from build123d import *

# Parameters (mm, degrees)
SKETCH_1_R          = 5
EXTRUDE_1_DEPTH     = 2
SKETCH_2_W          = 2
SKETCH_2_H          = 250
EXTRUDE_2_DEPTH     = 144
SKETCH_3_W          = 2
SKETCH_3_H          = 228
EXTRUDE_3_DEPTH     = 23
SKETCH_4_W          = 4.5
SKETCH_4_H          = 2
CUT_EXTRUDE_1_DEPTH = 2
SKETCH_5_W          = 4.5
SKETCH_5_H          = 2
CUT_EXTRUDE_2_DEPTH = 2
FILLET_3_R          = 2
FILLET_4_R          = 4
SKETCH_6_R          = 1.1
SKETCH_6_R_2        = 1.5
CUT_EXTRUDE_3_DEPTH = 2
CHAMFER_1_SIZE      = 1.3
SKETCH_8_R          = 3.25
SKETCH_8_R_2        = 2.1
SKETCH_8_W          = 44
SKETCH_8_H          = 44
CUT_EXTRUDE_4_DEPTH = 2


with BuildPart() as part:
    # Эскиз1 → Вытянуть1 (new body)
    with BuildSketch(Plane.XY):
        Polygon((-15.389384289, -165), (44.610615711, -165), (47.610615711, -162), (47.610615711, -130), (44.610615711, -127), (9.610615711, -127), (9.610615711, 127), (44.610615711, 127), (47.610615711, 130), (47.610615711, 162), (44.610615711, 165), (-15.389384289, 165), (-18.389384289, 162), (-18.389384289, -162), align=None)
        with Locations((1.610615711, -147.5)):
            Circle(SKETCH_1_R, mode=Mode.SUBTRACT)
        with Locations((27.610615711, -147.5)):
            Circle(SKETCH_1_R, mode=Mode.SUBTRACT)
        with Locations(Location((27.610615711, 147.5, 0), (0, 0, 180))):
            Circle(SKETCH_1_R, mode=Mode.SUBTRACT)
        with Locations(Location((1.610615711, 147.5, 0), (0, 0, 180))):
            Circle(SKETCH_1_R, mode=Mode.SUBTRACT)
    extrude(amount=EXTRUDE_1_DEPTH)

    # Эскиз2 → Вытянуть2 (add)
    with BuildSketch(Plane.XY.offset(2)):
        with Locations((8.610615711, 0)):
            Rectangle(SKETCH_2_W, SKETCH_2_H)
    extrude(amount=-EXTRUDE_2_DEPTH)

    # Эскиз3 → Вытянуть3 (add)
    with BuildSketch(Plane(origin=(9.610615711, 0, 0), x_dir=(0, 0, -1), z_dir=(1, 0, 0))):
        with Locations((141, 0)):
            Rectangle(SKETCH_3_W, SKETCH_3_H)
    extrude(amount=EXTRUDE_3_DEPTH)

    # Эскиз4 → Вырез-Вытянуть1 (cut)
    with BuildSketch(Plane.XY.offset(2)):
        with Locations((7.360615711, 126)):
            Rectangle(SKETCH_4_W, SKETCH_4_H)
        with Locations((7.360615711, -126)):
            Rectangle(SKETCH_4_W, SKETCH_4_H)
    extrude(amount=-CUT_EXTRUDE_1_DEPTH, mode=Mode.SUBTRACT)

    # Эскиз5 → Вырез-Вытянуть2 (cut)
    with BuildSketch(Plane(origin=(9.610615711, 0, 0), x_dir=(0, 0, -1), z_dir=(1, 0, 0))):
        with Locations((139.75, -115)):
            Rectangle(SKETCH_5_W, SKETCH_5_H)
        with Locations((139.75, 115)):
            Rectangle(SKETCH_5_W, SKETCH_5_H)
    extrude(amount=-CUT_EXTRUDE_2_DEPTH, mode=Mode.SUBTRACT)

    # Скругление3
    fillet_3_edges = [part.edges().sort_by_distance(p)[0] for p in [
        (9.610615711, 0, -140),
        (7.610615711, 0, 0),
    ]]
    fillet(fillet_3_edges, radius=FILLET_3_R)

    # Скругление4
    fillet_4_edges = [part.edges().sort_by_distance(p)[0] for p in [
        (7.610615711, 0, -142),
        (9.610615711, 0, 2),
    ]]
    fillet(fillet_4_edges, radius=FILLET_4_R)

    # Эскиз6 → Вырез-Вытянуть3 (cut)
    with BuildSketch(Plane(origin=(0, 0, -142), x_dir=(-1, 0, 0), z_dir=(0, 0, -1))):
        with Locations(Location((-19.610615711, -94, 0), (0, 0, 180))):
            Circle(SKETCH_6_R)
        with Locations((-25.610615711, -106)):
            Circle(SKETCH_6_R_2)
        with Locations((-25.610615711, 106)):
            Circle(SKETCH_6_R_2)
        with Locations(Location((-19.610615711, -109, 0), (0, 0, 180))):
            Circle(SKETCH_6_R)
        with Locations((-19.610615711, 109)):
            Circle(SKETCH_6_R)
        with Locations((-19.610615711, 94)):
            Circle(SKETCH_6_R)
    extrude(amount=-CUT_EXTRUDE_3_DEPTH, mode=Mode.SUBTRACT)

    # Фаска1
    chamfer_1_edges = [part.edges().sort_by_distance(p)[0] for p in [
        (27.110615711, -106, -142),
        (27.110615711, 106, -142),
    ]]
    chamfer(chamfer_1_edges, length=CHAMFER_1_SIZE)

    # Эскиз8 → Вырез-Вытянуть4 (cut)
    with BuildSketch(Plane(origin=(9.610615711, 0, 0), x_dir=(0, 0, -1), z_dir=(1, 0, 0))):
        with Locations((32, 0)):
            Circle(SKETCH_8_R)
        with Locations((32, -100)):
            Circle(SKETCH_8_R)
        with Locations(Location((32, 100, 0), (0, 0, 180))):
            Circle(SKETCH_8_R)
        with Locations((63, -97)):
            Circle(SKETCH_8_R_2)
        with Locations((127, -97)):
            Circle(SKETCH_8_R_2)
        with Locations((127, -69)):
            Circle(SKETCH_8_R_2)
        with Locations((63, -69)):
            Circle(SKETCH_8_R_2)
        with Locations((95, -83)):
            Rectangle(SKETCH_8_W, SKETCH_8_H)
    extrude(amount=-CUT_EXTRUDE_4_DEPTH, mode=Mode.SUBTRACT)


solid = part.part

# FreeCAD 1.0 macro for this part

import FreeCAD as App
import Part
import Sketcher

V = App.Vector
Q = App.Units.Quantity


def edges_at(feature, points):
    """Names of the edges that pass closest to the given points."""
    edges = feature.Shape.Edges
    near = lambda p: min(range(len(edges)), key=lambda i: edges[i].distToShape(Part.Vertex(*p))[0])
    return sorted({f"Edge{near(p) + 1}" for p in points})


def add_polygon(sketch, points):
    """Adds a closed chain of lines whose ends are joined by coincident constraints."""
    first, n = sketch.GeometryCount, len(points)
    for a, b in zip(points, points[1:] + points[:1]):
        sketch.addGeometry(Part.LineSegment(App.Vector(*a, 0), App.Vector(*b, 0)), False)
    for i in range(n):
        sketch.addConstraint(Sketcher.Constraint("Coincident", first + i, 2, first + (i + 1) % n, 1))

doc = App.newDocument("Part")
body = doc.addObject("PartDesign::Body", "Body")

# Sketch on XY plane
sketch1 = body.newObject("Sketcher::SketchObject", "Sketch")
sketch1.AttachmentSupport = (doc.getObject("XY_Plane"), [""])
sketch1.MapMode = "FlatFace"
add_polygon(sketch1, [(-15.4, -165), (44.6, -165), (47.6, -162), (47.6, -130), (44.6, -127), (9.6, -127), (9.6, 127), (44.6, 127), (47.6, 130), (47.6, 162), (44.6, 165), (-15.4, 165), (-18.4, 162), (-18.4, -162)])  # lines 0-13
sketch1.addGeometry(Part.Circle(V(1.6, -147.5, 0), V(0, 0, 1), 5), False)  # 14
sketch1.addGeometry(Part.Circle(V(27.6, -147.5, 0), V(0, 0, 1), 5), False)  # 15
sketch1.addGeometry(Part.Circle(V(1.6, 147.5, 0), V(0, 0, 1), 5), False)  # 16
sketch1.addGeometry(Part.Circle(V(27.6, 147.5, 0), V(0, 0, 1), 5), False)  # 17
sketch1.addConstraint([
    Sketcher.Constraint("Horizontal", 0),
    Sketcher.Constraint("Vertical", 2),
    Sketcher.Constraint("Horizontal", 4),
    Sketcher.Constraint("Vertical", 5),
    Sketcher.Constraint("Horizontal", 6),
    Sketcher.Constraint("Vertical", 8),
    Sketcher.Constraint("Horizontal", 10),
    Sketcher.Constraint("Vertical", 12),
    Sketcher.Constraint("Equal", 14, 15),
    Sketcher.Constraint("Equal", 15, 16),
    Sketcher.Constraint("Equal", 16, 17),
    Sketcher.Constraint("Symmetric", 14, 3, 16, 3, -1),
    Sketcher.Constraint("Symmetric", 15, 3, 17, 3, -1),
    Sketcher.Constraint("Symmetric", 3, 2, 6, 2, -1),
    Sketcher.Constraint("Symmetric", 2, 2, 7, 2, -1),
    Sketcher.Constraint("Symmetric", 0, 2, 9, 2, -1),
    Sketcher.Constraint("Perpendicular", 1, 3),
    Sketcher.Constraint("Perpendicular", 3, 7),
    Sketcher.Constraint("Perpendicular", 7, 9),
    Sketcher.Constraint("Perpendicular", 9, 11),
    Sketcher.Constraint("Perpendicular", 11, 13),
    Sketcher.Constraint("Horizontal", 14, 3, 15, 3),
    Sketcher.Constraint("Horizontal", 8, 2, 11, 2),
    Sketcher.Constraint("Horizontal", 1, 2, 12, 2),
    Sketcher.Constraint("Vertical", 0, 2, 3, 2),
    Sketcher.Constraint("Diameter", 14, Q("10 mm")),
    Sketcher.Constraint("DistanceX", 0, 1, 0, 2, Q("60 mm")),
    Sketcher.Constraint("DistanceX", 4, 2, 4, 1, Q("35 mm")),
    Sketcher.Constraint("DistanceY", 2, 1, 2, 2, Q("32 mm")),
    Sketcher.Constraint("DistanceY", 5, 1, 5, 2, Q("254 mm")),
    Sketcher.Constraint("DistanceY", 12, 2, 12, 1, Q("324 mm")),
    Sketcher.Constraint("DistanceX", 14, 3, 15, 3, Q("26 mm")),
    Sketcher.Constraint("DistanceY", 14, 3, 16, 3, Q("295 mm")),
    Sketcher.Constraint("DistanceX", 15, 3, 0, 2, Q("17 mm")),
    Sketcher.Constraint("DistanceX", -1, 1, 14, 3, Q("1.610616 mm")),
])
pad1 = body.newObject("PartDesign::Pad", "Pad")
pad1.Profile = sketch1
pad1.Length = 2

# Sketch on XY plane
sketch2 = body.newObject("Sketcher::SketchObject", "Sketch001")
sketch2.AttachmentSupport = (doc.getObject("XY_Plane"), [""])
sketch2.MapMode = "FlatFace"
sketch2.AttachmentOffset = App.Placement(V(0, 0, 2), App.Rotation())
add_polygon(sketch2, [(7.6, 125), (7.6, -125), (9.6, -125), (9.6, 125)])  # lines 0-3
sketch2.addConstraint([
    Sketcher.Constraint("Vertical", 0),
    Sketcher.Constraint("Horizontal", 1),
    Sketcher.Constraint("Vertical", 2),
    Sketcher.Constraint("Horizontal", 3),
    Sketcher.Constraint("DistanceX", 1, 1, 1, 2, Q("2 mm")),
    Sketcher.Constraint("DistanceY", 0, 2, 0, 1, Q("250 mm")),
    Sketcher.Constraint("DistanceY", 0, 2, -1, 1, Q("125 mm")),
    Sketcher.Constraint("DistanceX", -1, 1, 0, 2, Q("7.610616 mm")),
])
pad2 = body.newObject("PartDesign::Pad", "Pad001")
pad2.Profile = sketch2
pad2.Length = 144
pad2.Reversed = True

# Sketch on YZ plane
sketch3 = body.newObject("Sketcher::SketchObject", "Sketch002")
sketch3.AttachmentSupport = (doc.getObject("YZ_Plane"), [""])
sketch3.MapMode = "FlatFace"
sketch3.AttachmentOffset = App.Placement(V(0, 0, 9.610616), App.Rotation())
add_polygon(sketch3, [(114, -140), (-114, -140), (-114, -142), (114, -142)])  # lines 0-3
sketch3.addConstraint([
    Sketcher.Constraint("Horizontal", 0),
    Sketcher.Constraint("Vertical", 1),
    Sketcher.Constraint("Horizontal", 2),
    Sketcher.Constraint("Vertical", 3),
    Sketcher.Constraint("DistanceX", 0, 2, 0, 1, Q("228 mm")),
    Sketcher.Constraint("DistanceY", 1, 2, 1, 1, Q("2 mm")),
    Sketcher.Constraint("DistanceX", 0, 2, -1, 1, Q("114 mm")),
    Sketcher.Constraint("DistanceY", 0, 2, -1, 1, Q("140 mm")),
])
pad3 = body.newObject("PartDesign::Pad", "Pad002")
pad3.Profile = sketch3
pad3.Length = 23

# Sketch on XY plane
sketch4 = body.newObject("Sketcher::SketchObject", "Sketch003")
sketch4.AttachmentSupport = (doc.getObject("XY_Plane"), [""])
sketch4.MapMode = "FlatFace"
sketch4.AttachmentOffset = App.Placement(V(0, 0, 2), App.Rotation())
add_polygon(sketch4, [(5.1, 127), (5.1, 125), (9.6, 125), (9.6, 127)])  # lines 0-3
add_polygon(sketch4, [(5.1, -125), (5.1, -127), (9.6, -127), (9.6, -125)])  # lines 4-7
sketch4.addConstraint([
    Sketcher.Constraint("Vertical", 0),
    Sketcher.Constraint("Horizontal", 1),
    Sketcher.Constraint("Vertical", 2),
    Sketcher.Constraint("Horizontal", 3),
    Sketcher.Constraint("Vertical", 4),
    Sketcher.Constraint("Horizontal", 5),
    Sketcher.Constraint("Vertical", 6),
    Sketcher.Constraint("Horizontal", 7),
    Sketcher.Constraint("Symmetric", 3, 2, 4, 2, -1),
    Sketcher.Constraint("Symmetric", 1, 2, 6, 2, -1),
    Sketcher.Constraint("DistanceY", 0, 2, 0, 1, Q("2 mm")),
    Sketcher.Constraint("DistanceX", 1, 1, 1, 2, Q("4.5 mm")),
    Sketcher.Constraint("DistanceY", -1, 1, 0, 2, Q("125 mm")),
    Sketcher.Constraint("DistanceX", -1, 1, 0, 2, Q("5.110616 mm")),
])
pocket1 = body.newObject("PartDesign::Pocket", "Pocket")
pocket1.Profile = sketch4
pocket1.Length = 2

# Sketch on YZ plane
sketch5 = body.newObject("Sketcher::SketchObject", "Sketch004")
sketch5.AttachmentSupport = (doc.getObject("YZ_Plane"), [""])
sketch5.MapMode = "FlatFace"
sketch5.AttachmentOffset = App.Placement(V(0, 0, 9.610616), App.Rotation())
add_polygon(sketch5, [(-114, -137.5), (-116, -137.5), (-116, -142), (-114, -142)])  # lines 0-3
add_polygon(sketch5, [(116, -137.5), (114, -137.5), (114, -142), (116, -142)])  # lines 4-7
sketch5.addConstraint([
    Sketcher.Constraint("Horizontal", 0),
    Sketcher.Constraint("Vertical", 1),
    Sketcher.Constraint("Horizontal", 2),
    Sketcher.Constraint("Vertical", 3),
    Sketcher.Constraint("Horizontal", 4),
    Sketcher.Constraint("Vertical", 5),
    Sketcher.Constraint("Horizontal", 6),
    Sketcher.Constraint("Vertical", 7),
    Sketcher.Constraint("Symmetric", 3, 2, 4, 2, -2),
    Sketcher.Constraint("Symmetric", 1, 2, 6, 2, -2),
    Sketcher.Constraint("DistanceX", 0, 2, 0, 1, Q("2 mm")),
    Sketcher.Constraint("DistanceY", 1, 2, 1, 1, Q("4.5 mm")),
    Sketcher.Constraint("DistanceX", 0, 2, -1, 1, Q("116 mm")),
    Sketcher.Constraint("DistanceY", 1, 2, -1, 1, Q("142 mm")),
])
pocket2 = body.newObject("PartDesign::Pocket", "Pocket001")
pocket2.Profile = sketch5
pocket2.Length = 2
doc.recompute()

fillet = body.newObject("PartDesign::Fillet", "Fillet")
fillet.Base = (pocket2, edges_at(pocket2, [(9.611, 0, -140), (7.611, 0, 0)]))
fillet.Radius = 2
doc.recompute()

fillet2 = body.newObject("PartDesign::Fillet", "Fillet001")
fillet2.Base = (fillet, edges_at(fillet, [(7.611, 0, -142), (9.611, 0, 2)]))
fillet2.Radius = 4

# Sketch on XY plane
sketch6 = body.newObject("Sketcher::SketchObject", "Sketch005")
sketch6.AttachmentSupport = (doc.getObject("XY_Plane"), [""])
sketch6.MapMode = "FlatFace"
sketch6.AttachmentOffset = App.Placement(V(0, 0, -142), App.Rotation())
sketch6.addGeometry([
    Part.Circle(V(19.6, -94, 0), V(0, 0, 1), 1.1),  # 0
    Part.Circle(V(25.6, -106, 0), V(0, 0, 1), 1.5),  # 1
    Part.Circle(V(25.6, 106, 0), V(0, 0, 1), 1.5),  # 2
    Part.Circle(V(19.6, -109, 0), V(0, 0, 1), 1.1),  # 3
    Part.Circle(V(19.6, 109, 0), V(0, 0, 1), 1.1),  # 4
    Part.Circle(V(19.6, 94, 0), V(0, 0, 1), 1.1),  # 5
], False)
sketch6.addConstraint([
    Sketcher.Constraint("Equal", 1, 2),
    Sketcher.Constraint("Equal", 0, 3),
    Sketcher.Constraint("Equal", 3, 4),
    Sketcher.Constraint("Equal", 4, 5),
    Sketcher.Constraint("Symmetric", 1, 3, 2, 3, -1),
    Sketcher.Constraint("Symmetric", 3, 3, 4, 3, -1),
    Sketcher.Constraint("Symmetric", 0, 3, 5, 3, -1),
    Sketcher.Constraint("Vertical", 0, 3, 3, 3),
    Sketcher.Constraint("Diameter", 1, Q("3 mm")),
    Sketcher.Constraint("Diameter", 0, Q("2.2 mm")),
    Sketcher.Constraint("DistanceY", 0, 3, -1, 1, Q("94 mm")),
    Sketcher.Constraint("DistanceY", 1, 3, -1, 1, Q("106 mm")),
    Sketcher.Constraint("DistanceY", 3, 3, -1, 1, Q("109 mm")),
    Sketcher.Constraint("DistanceX", 0, 3, 1, 3, Q("6 mm")),
    Sketcher.Constraint("DistanceX", -1, 1, 0, 3, Q("19.610616 mm")),
])
pocket3 = body.newObject("PartDesign::Pocket", "Pocket002")
pocket3.Profile = sketch6
pocket3.Length = 2
pocket3.Reversed = True
doc.recompute()

chamfer = body.newObject("PartDesign::Chamfer", "Chamfer")
chamfer.Base = (pocket3, edges_at(pocket3, [(27.111, -106, -142), (27.111, 106, -142)]))
chamfer.Size = 1.3

# Sketch on YZ plane
sketch7 = body.newObject("Sketcher::SketchObject", "Sketch006")
sketch7.AttachmentSupport = (doc.getObject("YZ_Plane"), [""])
sketch7.MapMode = "FlatFace"
sketch7.AttachmentOffset = App.Placement(V(0, 0, 9.610616), App.Rotation())
sketch7.addGeometry(Part.Circle(V(0, -32, 0), V(0, 0, 1), 3.2), False)  # 0
sketch7.addGeometry(Part.Circle(V(-100, -32, 0), V(0, 0, 1), 3.2), False)  # 1
sketch7.addGeometry(Part.Circle(V(100, -32, 0), V(0, 0, 1), 3.2), False)  # 2
sketch7.addGeometry(Part.Circle(V(-97, -63, 0), V(0, 0, 1), 2.1), False)  # 3
sketch7.addGeometry(Part.Circle(V(-97, -127, 0), V(0, 0, 1), 2.1), False)  # 4
sketch7.addGeometry(Part.Circle(V(-69, -127, 0), V(0, 0, 1), 2.1), False)  # 5
sketch7.addGeometry(Part.Circle(V(-69, -63, 0), V(0, 0, 1), 2.1), False)  # 6
add_polygon(sketch7, [(-61, -73), (-105, -73), (-105, -117), (-61, -117)])  # lines 7-10
sketch7.addConstraint([
    Sketcher.Constraint("Horizontal", 7),
    Sketcher.Constraint("Vertical", 8),
    Sketcher.Constraint("Horizontal", 9),
    Sketcher.Constraint("Vertical", 10),
    Sketcher.Constraint("Equal", 0, 1),
    Sketcher.Constraint("Equal", 1, 2),
    Sketcher.Constraint("Equal", 3, 4),
    Sketcher.Constraint("Equal", 4, 5),
    Sketcher.Constraint("Equal", 5, 6),
    Sketcher.Constraint("Symmetric", 1, 3, 2, 3, -2),
    Sketcher.Constraint("PointOnObject", 0, 3, -2),
    Sketcher.Constraint("Horizontal", 0, 3, 1, 3),
    Sketcher.Constraint("Horizontal", 4, 3, 5, 3),
    Sketcher.Constraint("Horizontal", 3, 3, 6, 3),
    Sketcher.Constraint("Vertical", 3, 3, 4, 3),
    Sketcher.Constraint("Vertical", 5, 3, 6, 3),
    Sketcher.Constraint("Equal", 9, 8),
    Sketcher.Constraint("Diameter", 0, Q("6.5 mm")),
    Sketcher.Constraint("Diameter", 3, Q("4.2 mm")),
    Sketcher.Constraint("DistanceX", 7, 2, 7, 1, Q("44 mm")),
    Sketcher.Constraint("DistanceY", 0, 3, -1, 1, Q("32 mm")),
    Sketcher.Constraint("DistanceX", 1, 3, -1, 1, Q("100 mm")),
    Sketcher.Constraint("DistanceX", 3, 3, -1, 1, Q("97 mm")),
    Sketcher.Constraint("DistanceY", 3, 3, -1, 1, Q("63 mm")),
    Sketcher.Constraint("DistanceY", 4, 3, -1, 1, Q("127 mm")),
    Sketcher.Constraint("DistanceX", 5, 3, -1, 1, Q("69 mm")),
    Sketcher.Constraint("DistanceX", 7, 2, -1, 1, Q("105 mm")),
    Sketcher.Constraint("DistanceY", 7, 2, -1, 1, Q("73 mm")),
])
pocket4 = body.newObject("PartDesign::Pocket", "Pocket003")
pocket4.Profile = sketch7
pocket4.Length = 2

doc.recompute()
